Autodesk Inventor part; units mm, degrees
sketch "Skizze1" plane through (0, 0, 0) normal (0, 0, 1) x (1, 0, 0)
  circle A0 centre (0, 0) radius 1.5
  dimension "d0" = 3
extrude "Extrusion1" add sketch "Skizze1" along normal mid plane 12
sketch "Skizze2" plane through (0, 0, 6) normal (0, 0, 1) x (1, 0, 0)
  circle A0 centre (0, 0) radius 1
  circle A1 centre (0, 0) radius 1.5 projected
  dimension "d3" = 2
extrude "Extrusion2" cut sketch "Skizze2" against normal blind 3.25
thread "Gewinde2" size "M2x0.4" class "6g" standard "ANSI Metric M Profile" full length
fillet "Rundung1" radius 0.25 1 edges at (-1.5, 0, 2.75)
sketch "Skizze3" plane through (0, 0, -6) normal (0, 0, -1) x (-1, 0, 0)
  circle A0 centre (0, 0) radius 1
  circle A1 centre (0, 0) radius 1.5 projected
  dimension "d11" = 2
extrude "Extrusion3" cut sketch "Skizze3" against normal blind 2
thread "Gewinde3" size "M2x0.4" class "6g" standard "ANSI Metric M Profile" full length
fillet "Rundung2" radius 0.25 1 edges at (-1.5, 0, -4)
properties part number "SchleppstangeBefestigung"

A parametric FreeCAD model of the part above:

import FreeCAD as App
import Part
import Sketcher

V = App.Vector


def edges_at(feature, points):
    """Names of the edges that pass closest to the given points."""
    edges = feature.Shape.Edges
    near = lambda p: min(range(len(edges)), key=lambda i: edges[i].distToShape(Part.Vertex(*p))[0])
    return sorted({f"Edge{near(p) + 1}" for p in points})

doc = App.newDocument("Part")
body = doc.addObject("PartDesign::Body", "Body")

# Sketch on XY plane
sketch1 = body.newObject("Sketcher::SketchObject", "Sketch")
sketch1.AttachmentSupport = (doc.getObject("XY_Plane"), [""])
sketch1.MapMode = "FlatFace"
sketch1.addGeometry(Part.Circle(V(0, 0, 0), V(0, 0, 1), 1.5), False)
sketch1.addConstraint([
    Sketcher.Constraint("Coincident", 0, 3, -1, 1),
    Sketcher.Constraint("Diameter", 0, 3.0),
])
pad1 = body.newObject("PartDesign::Pad", "Pad")
pad1.Profile = sketch1
pad1.Length = 12
pad1.Midplane = True

# Sketch on XY plane
sketch2 = body.newObject("Sketcher::SketchObject", "Sketch001")
sketch2.AttachmentSupport = (doc.getObject("XY_Plane"), [""])
sketch2.MapMode = "FlatFace"
sketch2.AttachmentOffset = App.Placement(V(0, 0, 6), App.Rotation())
sketch2.addGeometry([
    Part.Circle(V(0, 0, 0), V(0, 0, 1), 1.5),
    Part.Circle(V(0, 0, 0), V(0, 0, 1), 1),
], False)
sketch2.addConstraint([
    Sketcher.Constraint("Coincident", 0, 3, -1, 1),
    Sketcher.Constraint("Coincident", 1, 3, -1, 1),
    Sketcher.Constraint("Diameter", 1, 2.0),
    Sketcher.Constraint("Diameter", 0, 3.0),
])
pocket1 = body.newObject("PartDesign::Pocket", "Pocket")
pocket1.Profile = sketch2
pocket1.Length = 3.25
doc.recompute()

fillet = body.newObject("PartDesign::Fillet", "Fillet")
fillet.Base = (pocket1, edges_at(pocket1, [(-1.5, 0, 2.75)]))
fillet.Radius = 0.25

# Sketch on XY plane
sketch3 = body.newObject("Sketcher::SketchObject", "Sketch002")
sketch3.AttachmentSupport = (doc.getObject("XY_Plane"), [""])
sketch3.MapMode = "FlatFace"
sketch3.AttachmentOffset = App.Placement(V(0, 0, -6), App.Rotation())
sketch3.addGeometry([
    Part.Circle(V(0, 0, 0), V(0, 0, 1), 1.5),
    Part.Circle(V(0, 0, 0), V(0, 0, 1), 1),
], False)
sketch3.addConstraint([
    Sketcher.Constraint("Coincident", 0, 3, -1, 1),
    Sketcher.Constraint("Coincident", 1, 3, -1, 1),
    Sketcher.Constraint("Diameter", 1, 2.0),
    Sketcher.Constraint("Diameter", 0, 3.0),
])
pocket2 = body.newObject("PartDesign::Pocket", "Pocket001")
pocket2.Profile = sketch3
pocket2.Length = 2
pocket2.Reversed = True
doc.recompute()

fillet2 = body.newObject("PartDesign::Fillet", "Fillet001")
fillet2.Base = (pocket2, edges_at(pocket2, [(-1.5, 0, -4)]))
fillet2.Radius = 0.25

doc.recompute()
